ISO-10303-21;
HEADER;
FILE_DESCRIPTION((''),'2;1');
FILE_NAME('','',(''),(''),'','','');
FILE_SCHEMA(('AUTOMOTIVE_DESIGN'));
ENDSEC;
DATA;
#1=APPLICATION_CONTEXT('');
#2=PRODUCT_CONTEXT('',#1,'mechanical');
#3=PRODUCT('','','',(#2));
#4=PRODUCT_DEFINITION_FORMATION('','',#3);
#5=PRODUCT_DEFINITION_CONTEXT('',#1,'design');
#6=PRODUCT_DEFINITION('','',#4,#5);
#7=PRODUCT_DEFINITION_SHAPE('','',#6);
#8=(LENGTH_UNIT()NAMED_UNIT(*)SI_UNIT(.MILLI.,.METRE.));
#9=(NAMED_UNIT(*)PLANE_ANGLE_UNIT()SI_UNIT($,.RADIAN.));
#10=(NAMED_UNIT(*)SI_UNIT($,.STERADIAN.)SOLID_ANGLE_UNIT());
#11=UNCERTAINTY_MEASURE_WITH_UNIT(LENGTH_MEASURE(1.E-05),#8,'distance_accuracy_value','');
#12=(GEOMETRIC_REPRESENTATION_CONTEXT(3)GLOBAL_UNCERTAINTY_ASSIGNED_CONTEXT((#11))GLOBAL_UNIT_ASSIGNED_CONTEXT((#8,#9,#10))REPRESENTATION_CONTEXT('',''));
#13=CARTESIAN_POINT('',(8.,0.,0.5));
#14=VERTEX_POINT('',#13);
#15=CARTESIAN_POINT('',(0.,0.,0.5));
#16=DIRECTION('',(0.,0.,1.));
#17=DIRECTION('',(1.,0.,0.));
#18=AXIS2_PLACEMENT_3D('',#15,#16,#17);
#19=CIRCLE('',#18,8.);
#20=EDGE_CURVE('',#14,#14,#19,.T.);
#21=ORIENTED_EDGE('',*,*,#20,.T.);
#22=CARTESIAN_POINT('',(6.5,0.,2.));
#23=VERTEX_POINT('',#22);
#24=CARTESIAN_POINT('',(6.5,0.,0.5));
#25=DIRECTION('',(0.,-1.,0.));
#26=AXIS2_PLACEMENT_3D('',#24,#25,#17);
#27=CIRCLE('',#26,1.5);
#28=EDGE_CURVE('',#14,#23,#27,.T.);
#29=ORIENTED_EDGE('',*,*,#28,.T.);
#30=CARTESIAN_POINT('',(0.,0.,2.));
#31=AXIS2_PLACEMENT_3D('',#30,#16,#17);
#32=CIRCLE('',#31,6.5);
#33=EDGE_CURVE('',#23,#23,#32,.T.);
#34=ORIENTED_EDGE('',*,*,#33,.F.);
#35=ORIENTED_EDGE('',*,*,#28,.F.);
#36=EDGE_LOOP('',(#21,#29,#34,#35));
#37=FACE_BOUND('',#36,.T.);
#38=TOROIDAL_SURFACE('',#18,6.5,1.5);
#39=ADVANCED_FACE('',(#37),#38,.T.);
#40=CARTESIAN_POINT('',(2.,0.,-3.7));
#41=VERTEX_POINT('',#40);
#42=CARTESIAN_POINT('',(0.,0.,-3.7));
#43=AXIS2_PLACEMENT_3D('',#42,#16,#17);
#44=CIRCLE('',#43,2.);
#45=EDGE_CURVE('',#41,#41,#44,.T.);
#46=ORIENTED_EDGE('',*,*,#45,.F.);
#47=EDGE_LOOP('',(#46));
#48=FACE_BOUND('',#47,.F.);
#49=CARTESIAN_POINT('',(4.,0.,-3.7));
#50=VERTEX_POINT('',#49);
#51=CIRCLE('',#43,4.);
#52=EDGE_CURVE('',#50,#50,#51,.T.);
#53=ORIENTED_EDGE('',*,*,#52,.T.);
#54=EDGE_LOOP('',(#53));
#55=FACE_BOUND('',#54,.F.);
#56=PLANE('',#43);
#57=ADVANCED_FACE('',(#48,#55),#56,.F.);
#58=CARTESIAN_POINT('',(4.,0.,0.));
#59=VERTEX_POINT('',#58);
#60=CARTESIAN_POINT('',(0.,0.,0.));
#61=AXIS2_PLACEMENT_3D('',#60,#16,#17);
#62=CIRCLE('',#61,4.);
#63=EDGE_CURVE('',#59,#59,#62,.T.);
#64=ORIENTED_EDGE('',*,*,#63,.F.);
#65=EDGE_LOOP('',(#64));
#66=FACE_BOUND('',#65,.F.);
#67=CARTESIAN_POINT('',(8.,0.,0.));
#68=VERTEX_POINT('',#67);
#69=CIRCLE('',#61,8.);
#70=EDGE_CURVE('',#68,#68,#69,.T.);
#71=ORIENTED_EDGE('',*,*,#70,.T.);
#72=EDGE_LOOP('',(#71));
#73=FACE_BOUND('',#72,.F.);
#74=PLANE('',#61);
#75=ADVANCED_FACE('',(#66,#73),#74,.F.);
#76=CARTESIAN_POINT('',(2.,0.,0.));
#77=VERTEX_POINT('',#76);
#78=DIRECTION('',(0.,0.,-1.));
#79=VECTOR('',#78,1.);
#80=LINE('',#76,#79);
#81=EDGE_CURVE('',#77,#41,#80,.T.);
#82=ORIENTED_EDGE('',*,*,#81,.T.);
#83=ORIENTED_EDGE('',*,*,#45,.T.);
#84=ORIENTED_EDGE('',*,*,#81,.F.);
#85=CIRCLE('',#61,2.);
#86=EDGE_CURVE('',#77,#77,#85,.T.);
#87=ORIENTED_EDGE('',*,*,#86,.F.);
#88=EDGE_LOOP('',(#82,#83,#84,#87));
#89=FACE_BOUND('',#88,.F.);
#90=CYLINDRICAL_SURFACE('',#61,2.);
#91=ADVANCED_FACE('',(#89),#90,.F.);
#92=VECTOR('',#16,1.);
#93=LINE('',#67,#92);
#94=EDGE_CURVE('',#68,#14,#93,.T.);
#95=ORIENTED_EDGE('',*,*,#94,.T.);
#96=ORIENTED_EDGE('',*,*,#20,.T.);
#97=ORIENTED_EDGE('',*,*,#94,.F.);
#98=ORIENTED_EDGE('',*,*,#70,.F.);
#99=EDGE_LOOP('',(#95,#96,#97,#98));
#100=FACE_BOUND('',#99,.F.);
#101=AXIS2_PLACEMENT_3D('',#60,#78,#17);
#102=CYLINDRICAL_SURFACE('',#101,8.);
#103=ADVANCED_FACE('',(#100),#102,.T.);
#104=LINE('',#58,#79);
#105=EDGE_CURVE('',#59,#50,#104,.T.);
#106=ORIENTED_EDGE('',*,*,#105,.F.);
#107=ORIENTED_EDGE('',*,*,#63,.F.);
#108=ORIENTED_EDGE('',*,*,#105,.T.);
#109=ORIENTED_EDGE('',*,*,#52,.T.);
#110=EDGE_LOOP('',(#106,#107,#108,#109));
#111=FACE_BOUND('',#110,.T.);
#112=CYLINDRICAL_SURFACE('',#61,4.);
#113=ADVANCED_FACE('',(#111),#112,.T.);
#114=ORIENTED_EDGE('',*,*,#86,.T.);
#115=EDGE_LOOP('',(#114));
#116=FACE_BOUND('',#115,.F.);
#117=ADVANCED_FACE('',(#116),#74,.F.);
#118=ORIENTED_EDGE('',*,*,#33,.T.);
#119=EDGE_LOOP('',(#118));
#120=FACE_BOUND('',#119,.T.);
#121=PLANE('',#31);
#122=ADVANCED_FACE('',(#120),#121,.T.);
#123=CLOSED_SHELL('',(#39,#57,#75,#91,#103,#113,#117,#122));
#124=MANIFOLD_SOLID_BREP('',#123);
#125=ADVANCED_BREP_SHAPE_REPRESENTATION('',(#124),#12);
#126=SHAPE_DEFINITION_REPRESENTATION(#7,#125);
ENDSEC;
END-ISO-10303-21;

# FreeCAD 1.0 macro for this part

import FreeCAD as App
import Part
import Sketcher
from FreeCAD import Vector
Q = App.Units.Quantity


def edges_at(feature, points):
    """Names of the edges that pass closest to the given points."""
    edges = feature.Shape.Edges
    near = lambda p: min(range(len(edges)), key=lambda i: edges[i].distToShape(Part.Vertex(*p))[0])
    return sorted({f"Edge{near(p) + 1}" for p in points})

doc = App.newDocument("Part")
params = doc.addObject("Spreadsheet::Sheet", "Params")
for row, (alias, value) in enumerate([
    ("sketch1_diameter", "16 mm"),
    ("pad1_length", "2 mm"),
    ("sketch2_diameter", "8 mm"),
    ("sketch2_diameter2", "4 mm"),
    ("pad2_length", "3.7 mm"),
    ("fillet_radius", "1.5 mm"),
], start=1):
    params.set(f"A{row}", alias)
    params.set(f"B{row}", "=" + value)
    params.setAlias(f"B{row}", alias)

body = doc.addObject("PartDesign::Body", "Body")

sketch1 = doc.addObject("Sketcher::SketchObject", "Sketch")
body.addObject(sketch1)
sketch1.AttachmentSupport = (doc.XY_Plane, [""])
sketch1.MapMode = "FlatFace"
sketch1.addGeometry(Part.Circle(Vector(0, 0, 0), Vector(0, 0, 1), 8), False)
sketch1.addConstraint([
    Sketcher.Constraint("Coincident", 0, 3, -1, 1),
    Sketcher.Constraint("Diameter", 0, Q("16 mm")),
])
sketch1.setExpression("Constraints[1]", "Params.sketch1_diameter")
pad1 = doc.addObject("PartDesign::Pad", "Pad")
body.addObject(pad1)
pad1.Profile = sketch1
pad1.setExpression("Length", "Params.pad1_length")

sketch2 = doc.addObject("Sketcher::SketchObject", "Sketch001")
body.addObject(sketch2)
sketch2.AttachmentSupport = (doc.XY_Plane, [""])
sketch2.MapMode = "FlatFace"
sketch2.addGeometry([
    Part.Circle(Vector(0, 0, 0), Vector(0, 0, 1), 4),
    Part.Circle(Vector(0, 0, 0), Vector(0, 0, 1), 2),
], False)
sketch2.addConstraint([
    Sketcher.Constraint("Coincident", 0, 3, -1, 1),
    Sketcher.Constraint("Coincident", 1, 3, -1, 1),
    Sketcher.Constraint("Diameter", 0, Q("8 mm")),
    Sketcher.Constraint("Diameter", 1, Q("4 mm")),
])
sketch2.setExpression("Constraints[2]", "Params.sketch2_diameter")
sketch2.setExpression("Constraints[3]", "Params.sketch2_diameter2")
pad2 = doc.addObject("PartDesign::Pad", "Pad001")
body.addObject(pad2)
pad2.Profile = sketch2
pad2.setExpression("Length", "Params.pad2_length")
pad2.Reversed = True
doc.recompute()

fillet = doc.addObject("PartDesign::Fillet", "Fillet")
body.addObject(fillet)
fillet.Base = (pad2, edges_at(pad2, [(-8, 0, 2)]))
fillet.setExpression("Radius", "Params.fillet_radius")

doc.recompute()
